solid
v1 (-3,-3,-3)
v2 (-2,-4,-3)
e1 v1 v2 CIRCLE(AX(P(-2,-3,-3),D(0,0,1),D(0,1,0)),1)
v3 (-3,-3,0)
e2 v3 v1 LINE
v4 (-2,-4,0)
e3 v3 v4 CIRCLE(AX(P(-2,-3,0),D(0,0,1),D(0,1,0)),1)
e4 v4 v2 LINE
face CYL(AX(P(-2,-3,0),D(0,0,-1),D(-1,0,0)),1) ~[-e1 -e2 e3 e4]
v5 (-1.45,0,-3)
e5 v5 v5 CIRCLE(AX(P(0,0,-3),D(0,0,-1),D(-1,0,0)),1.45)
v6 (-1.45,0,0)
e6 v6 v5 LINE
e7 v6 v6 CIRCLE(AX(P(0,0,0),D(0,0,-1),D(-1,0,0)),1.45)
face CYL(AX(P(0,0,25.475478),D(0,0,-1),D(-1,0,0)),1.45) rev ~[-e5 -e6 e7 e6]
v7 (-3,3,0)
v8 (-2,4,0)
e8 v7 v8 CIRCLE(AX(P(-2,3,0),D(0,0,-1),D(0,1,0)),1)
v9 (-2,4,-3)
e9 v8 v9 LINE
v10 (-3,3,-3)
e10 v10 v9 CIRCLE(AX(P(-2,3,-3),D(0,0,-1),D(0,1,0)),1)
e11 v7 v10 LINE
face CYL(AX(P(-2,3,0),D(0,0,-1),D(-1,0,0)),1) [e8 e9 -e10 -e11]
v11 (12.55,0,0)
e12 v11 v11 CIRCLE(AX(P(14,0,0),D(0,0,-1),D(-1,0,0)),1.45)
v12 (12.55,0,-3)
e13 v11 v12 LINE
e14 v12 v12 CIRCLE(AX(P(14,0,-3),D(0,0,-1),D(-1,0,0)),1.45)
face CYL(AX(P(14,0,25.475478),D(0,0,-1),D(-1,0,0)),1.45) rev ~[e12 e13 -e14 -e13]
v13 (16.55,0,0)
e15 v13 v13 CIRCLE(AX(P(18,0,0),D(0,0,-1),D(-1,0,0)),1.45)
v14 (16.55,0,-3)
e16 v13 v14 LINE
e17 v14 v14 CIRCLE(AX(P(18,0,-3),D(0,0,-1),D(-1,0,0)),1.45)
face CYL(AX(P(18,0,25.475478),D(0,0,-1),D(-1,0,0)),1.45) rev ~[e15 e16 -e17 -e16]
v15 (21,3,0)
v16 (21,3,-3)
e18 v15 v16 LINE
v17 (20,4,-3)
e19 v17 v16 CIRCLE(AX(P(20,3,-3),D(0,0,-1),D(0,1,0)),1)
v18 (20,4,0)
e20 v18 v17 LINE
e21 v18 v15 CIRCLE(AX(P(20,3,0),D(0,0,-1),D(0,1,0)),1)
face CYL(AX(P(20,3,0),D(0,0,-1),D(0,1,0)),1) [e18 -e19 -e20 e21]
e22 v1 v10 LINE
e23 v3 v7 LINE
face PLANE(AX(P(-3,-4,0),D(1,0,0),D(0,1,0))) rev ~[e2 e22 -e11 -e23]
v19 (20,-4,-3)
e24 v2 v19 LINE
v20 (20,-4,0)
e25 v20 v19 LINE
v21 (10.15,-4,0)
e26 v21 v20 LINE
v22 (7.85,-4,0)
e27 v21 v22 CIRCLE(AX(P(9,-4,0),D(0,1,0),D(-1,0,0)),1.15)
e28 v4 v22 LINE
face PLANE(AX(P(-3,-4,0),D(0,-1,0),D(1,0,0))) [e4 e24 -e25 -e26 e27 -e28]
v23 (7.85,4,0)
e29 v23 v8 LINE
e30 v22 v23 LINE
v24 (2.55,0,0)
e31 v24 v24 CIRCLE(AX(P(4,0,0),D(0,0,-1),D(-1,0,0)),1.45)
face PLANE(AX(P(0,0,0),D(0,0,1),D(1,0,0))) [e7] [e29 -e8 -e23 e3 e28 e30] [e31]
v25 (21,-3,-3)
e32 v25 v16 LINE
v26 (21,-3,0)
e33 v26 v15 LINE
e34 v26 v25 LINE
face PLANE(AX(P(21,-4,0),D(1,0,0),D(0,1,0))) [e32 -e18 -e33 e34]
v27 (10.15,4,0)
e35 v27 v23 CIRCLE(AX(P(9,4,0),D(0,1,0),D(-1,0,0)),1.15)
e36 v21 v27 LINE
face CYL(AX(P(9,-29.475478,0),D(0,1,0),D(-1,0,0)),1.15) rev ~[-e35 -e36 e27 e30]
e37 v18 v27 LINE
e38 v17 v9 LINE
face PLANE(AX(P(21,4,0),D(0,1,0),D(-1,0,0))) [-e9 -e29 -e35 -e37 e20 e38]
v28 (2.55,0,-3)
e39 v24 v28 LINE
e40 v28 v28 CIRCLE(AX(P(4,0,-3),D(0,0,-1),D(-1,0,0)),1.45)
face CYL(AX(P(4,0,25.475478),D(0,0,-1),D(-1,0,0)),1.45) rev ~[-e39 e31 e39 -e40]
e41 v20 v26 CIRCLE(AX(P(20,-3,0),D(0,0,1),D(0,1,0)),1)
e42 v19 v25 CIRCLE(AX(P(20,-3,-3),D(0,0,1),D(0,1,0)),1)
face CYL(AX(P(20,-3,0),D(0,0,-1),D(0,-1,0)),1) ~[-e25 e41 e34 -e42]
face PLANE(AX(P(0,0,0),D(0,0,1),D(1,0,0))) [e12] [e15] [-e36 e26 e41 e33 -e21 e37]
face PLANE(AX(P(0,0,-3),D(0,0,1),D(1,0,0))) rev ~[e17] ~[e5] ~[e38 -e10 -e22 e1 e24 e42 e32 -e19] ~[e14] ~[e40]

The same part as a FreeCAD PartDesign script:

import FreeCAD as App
import Part
import Sketcher
Q = App.Units.Quantity


def edges_at(feature, points):
    """Names of the edges that pass closest to the given points."""
    edges = feature.Shape.Edges
    near = lambda p: min(range(len(edges)), key=lambda i: edges[i].distToShape(Part.Vertex(*p))[0])
    return sorted({f"Edge{near(p) + 1}" for p in points})

doc = App.newDocument("Part")
params = doc.addObject("Spreadsheet::Sheet", "Params")
for row, (alias, value) in enumerate([
    ("sketch1_width", "24 mm"),
    ("sketch1_height", "8 mm"),
    ("pad1_length", "3 mm"),
    ("sketch2_diameter", "2.9 mm"),
    ("hole_diameter", "2.9 mm"),
    ("sketch3_diameter", "2.3 mm"),
    ("hole2_diameter", "2.3 mm"),
    ("fillet_radius", "1 mm"),
], start=1):
    params.set(f"A{row}", alias)
    params.set(f"B{row}", "=" + value)
    params.setAlias(f"B{row}", alias)

body = doc.addObject("PartDesign::Body", "Body")

# Sketch on XY plane
sketch1 = doc.addObject("Sketcher::SketchObject", "Sketch")
body.addObject(sketch1)
sketch1.AttachmentSupport = (doc.XY_Plane, [""])
sketch1.MapMode = "FlatFace"
sketch1.addGeometry([
    Part.LineSegment(App.Vector(-3, 4, 0), App.Vector(-3, -4, 0)),
    Part.LineSegment(App.Vector(-3, -4, 0), App.Vector(21, -4, 0)),
    Part.LineSegment(App.Vector(21, -4, 0), App.Vector(21, 4, 0)),
    Part.LineSegment(App.Vector(21, 4, 0), App.Vector(-3, 4, 0)),
], False)
sketch1.addConstraint([
    Sketcher.Constraint("Coincident", 0, 2, 1, 1),
    Sketcher.Constraint("Coincident", 1, 2, 2, 1),
    Sketcher.Constraint("Coincident", 2, 2, 3, 1),
    Sketcher.Constraint("Coincident", 3, 2, 0, 1),
    Sketcher.Constraint("Vertical", 0),
    Sketcher.Constraint("Horizontal", 1),
    Sketcher.Constraint("Vertical", 2),
    Sketcher.Constraint("Horizontal", 3),
    Sketcher.Constraint("DistanceX", 1, 1, 1, 2, Q("24 mm")),
    Sketcher.Constraint("DistanceY", 0, 2, 0, 1, Q("8 mm")),
    Sketcher.Constraint("DistanceX", 0, 2, -1, 1, Q("3 mm")),
    Sketcher.Constraint("DistanceY", 0, 2, -1, 1, Q("4 mm")),
])
sketch1.setExpression("Constraints[8]", "Params.sketch1_width")
sketch1.setExpression("Constraints[9]", "Params.sketch1_height")
pad1 = doc.addObject("PartDesign::Pad", "Pad")
body.addObject(pad1)
pad1.Profile = sketch1
pad1.setExpression("Length", "Params.pad1_length")
pad1.Reversed = True

# Sketch on XY plane
sketch2 = doc.addObject("Sketcher::SketchObject", "Sketch001")
body.addObject(sketch2)
sketch2.AttachmentSupport = (doc.XY_Plane, [""])
sketch2.MapMode = "FlatFace"
sketch2.addGeometry([
    Part.Circle(App.Vector(0, 0, 0), App.Vector(0, 0, 1), 1.4),
    Part.Circle(App.Vector(4, 0, 0), App.Vector(0, 0, 1), 1.4),
    Part.Circle(App.Vector(14, 0, 0), App.Vector(0, 0, 1), 1.4),
    Part.Circle(App.Vector(18, 0, 0), App.Vector(0, 0, 1), 1.4),
], False)
sketch2.addConstraint([
    Sketcher.Constraint("Coincident", 0, 3, -1, 1),
    Sketcher.Constraint("Equal", 0, 1),
    Sketcher.Constraint("Equal", 1, 2),
    Sketcher.Constraint("Equal", 2, 3),
    Sketcher.Constraint("PointOnObject", 1, 3, -1),
    Sketcher.Constraint("PointOnObject", 2, 3, -1),
    Sketcher.Constraint("PointOnObject", 3, 3, -1),
    Sketcher.Constraint("Diameter", 0, Q("2.9 mm")),
    Sketcher.Constraint("DistanceX", -1, 1, 1, 3, Q("4 mm")),
    Sketcher.Constraint("DistanceX", -1, 1, 2, 3, Q("14 mm")),
    Sketcher.Constraint("DistanceX", -1, 1, 3, 3, Q("18 mm")),
])
sketch2.setExpression("Constraints[7]", "Params.sketch2_diameter")
doc.recompute()
hole = doc.addObject("PartDesign::Hole", "Hole")
body.addObject(hole)
hole.Profile = sketch2
hole.ThreadType = "None"
hole.setExpression("Diameter", "Params.hole_diameter")
hole.DepthType = "ThroughAll"

# Sketch on XZ plane
sketch3 = doc.addObject("Sketcher::SketchObject", "Sketch002")
body.addObject(sketch3)
sketch3.AttachmentSupport = (doc.XZ_Plane, [""])
sketch3.MapMode = "FlatFace"
sketch3.AttachmentOffset = App.Placement(App.Vector(0, 0, 4), App.Rotation())
sketch3.addGeometry(Part.Circle(App.Vector(9, 0, 0), App.Vector(0, 0, 1), 1.1), False)
sketch3.addConstraint([
    Sketcher.Constraint("PointOnObject", 0, 3, -1),
    Sketcher.Constraint("Diameter", 0, Q("2.3 mm")),
    Sketcher.Constraint("DistanceX", -1, 1, 0, 3, Q("9 mm")),
])
sketch3.setExpression("Constraints[1]", "Params.sketch3_diameter")
doc.recompute()
hole2 = doc.addObject("PartDesign::Hole", "Hole001")
body.addObject(hole2)
hole2.Profile = sketch3
hole2.ThreadType = "None"
hole2.setExpression("Diameter", "Params.hole2_diameter")
hole2.DepthType = "ThroughAll"
doc.recompute()

fillet = doc.addObject("PartDesign::Fillet", "Fillet")
body.addObject(fillet)
fillet.Base = (hole2, edges_at(hole2, [
    (-3, -4, -1.5),
    (21, -4, -1.5),
    (21, 4, -1.5),
    (-3, 4, -1.5),
]))
fillet.setExpression("Radius", "Params.fillet_radius")

doc.recompute()
